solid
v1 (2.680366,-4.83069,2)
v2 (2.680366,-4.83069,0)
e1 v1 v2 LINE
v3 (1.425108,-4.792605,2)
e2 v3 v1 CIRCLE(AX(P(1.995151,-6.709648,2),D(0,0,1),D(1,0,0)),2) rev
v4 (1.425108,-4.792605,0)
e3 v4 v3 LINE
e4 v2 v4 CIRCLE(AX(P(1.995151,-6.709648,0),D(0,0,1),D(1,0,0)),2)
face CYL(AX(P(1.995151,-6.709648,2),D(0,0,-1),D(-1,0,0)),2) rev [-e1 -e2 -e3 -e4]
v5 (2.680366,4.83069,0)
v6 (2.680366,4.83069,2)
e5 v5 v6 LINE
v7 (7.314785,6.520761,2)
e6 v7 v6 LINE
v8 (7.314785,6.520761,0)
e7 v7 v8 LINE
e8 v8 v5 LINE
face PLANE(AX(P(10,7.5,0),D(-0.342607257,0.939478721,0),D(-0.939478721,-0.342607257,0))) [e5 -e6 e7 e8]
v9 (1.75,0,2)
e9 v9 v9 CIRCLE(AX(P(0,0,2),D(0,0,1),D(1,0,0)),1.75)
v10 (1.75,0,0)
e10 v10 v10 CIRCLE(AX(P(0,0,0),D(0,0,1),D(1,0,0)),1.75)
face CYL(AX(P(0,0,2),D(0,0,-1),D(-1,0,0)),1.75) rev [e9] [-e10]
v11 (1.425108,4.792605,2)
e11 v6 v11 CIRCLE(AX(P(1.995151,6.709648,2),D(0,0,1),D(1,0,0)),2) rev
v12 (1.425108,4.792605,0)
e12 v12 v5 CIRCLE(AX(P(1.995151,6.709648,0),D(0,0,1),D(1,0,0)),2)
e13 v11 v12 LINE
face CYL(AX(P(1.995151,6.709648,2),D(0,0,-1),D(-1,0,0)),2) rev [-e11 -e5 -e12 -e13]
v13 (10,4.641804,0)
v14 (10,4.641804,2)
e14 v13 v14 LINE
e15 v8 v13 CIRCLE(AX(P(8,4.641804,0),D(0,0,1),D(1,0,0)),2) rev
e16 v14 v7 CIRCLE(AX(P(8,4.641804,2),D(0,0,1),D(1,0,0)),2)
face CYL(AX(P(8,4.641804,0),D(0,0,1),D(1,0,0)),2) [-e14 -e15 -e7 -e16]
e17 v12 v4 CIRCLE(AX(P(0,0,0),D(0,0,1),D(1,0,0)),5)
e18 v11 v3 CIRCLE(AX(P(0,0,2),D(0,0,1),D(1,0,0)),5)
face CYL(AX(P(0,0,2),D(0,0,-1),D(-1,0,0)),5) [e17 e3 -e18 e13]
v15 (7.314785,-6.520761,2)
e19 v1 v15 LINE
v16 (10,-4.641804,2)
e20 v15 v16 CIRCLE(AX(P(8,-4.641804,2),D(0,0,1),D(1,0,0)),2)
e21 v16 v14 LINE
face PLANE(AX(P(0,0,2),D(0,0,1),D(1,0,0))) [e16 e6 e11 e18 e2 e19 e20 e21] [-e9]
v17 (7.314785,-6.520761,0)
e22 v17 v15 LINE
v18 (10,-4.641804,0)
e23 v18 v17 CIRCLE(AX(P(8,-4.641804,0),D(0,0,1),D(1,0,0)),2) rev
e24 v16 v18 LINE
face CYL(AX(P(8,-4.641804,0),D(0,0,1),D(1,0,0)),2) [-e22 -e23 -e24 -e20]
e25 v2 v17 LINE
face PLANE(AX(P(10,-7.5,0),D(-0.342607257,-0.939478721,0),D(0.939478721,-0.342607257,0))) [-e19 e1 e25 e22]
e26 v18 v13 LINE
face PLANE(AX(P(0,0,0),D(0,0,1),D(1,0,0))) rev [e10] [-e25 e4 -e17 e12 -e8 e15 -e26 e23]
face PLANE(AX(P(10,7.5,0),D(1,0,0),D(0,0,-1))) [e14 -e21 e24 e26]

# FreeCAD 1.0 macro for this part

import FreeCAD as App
import Part
import Sketcher

V = App.Vector


def edges_at(feature, points):
    """Names of the edges that pass closest to the given points."""
    edges = feature.Shape.Edges
    near = lambda p: min(range(len(edges)), key=lambda i: edges[i].distToShape(Part.Vertex(*p))[0])
    return sorted({f"Edge{near(p) + 1}" for p in points})


def add_polygon(sketch, points):
    """Adds a closed chain of lines whose ends are joined by coincident constraints."""
    first, n = sketch.GeometryCount, len(points)
    for a, b in zip(points, points[1:] + points[:1]):
        sketch.addGeometry(Part.LineSegment(App.Vector(*a, 0), App.Vector(*b, 0)), False)
    for i in range(n):
        sketch.addConstraint(Sketcher.Constraint("Coincident", first + i, 2, first + (i + 1) % n, 1))

doc = App.newDocument("Part")
params = doc.addObject("Spreadsheet::Sheet", "Params")
for row, (alias, value) in enumerate([
    ("sketch1_diameter", "10 mm"),
    ("sketch1_diameter2", "3.5 mm"),
    ("pad1_length", "2 mm"),
    ("sketch2_height", "15 mm"),
    ("pad2_length", "2 mm"),
    ("fillet_radius", "2 mm"),
], start=1):
    params.set(f"A{row}", alias)
    params.set(f"B{row}", "=" + value)
    params.setAlias(f"B{row}", alias)

body = doc.addObject("PartDesign::Body", "Body")

# Sketch on XY plane
sketch1 = doc.addObject("Sketcher::SketchObject", "Sketch")
body.addObject(sketch1)
sketch1.AttachmentSupport = (doc.XY_Plane, [""])
sketch1.MapMode = "FlatFace"
sketch1.addGeometry(Part.Circle(V(0, 0, 0), V(0, 0, 1), 5), False)
sketch1.addGeometry(Part.Circle(V(0, 0, 0), V(0, 0, 1), 1.8), False)
sketch1.addConstraint(Sketcher.Constraint("Coincident", 0, 3, -1, 1))
sketch1.addConstraint(Sketcher.Constraint("Coincident", 1, 3, -1, 1))
sketch1.addConstraint(Sketcher.Constraint("Diameter", 0, 10.0))
sketch1.addConstraint(Sketcher.Constraint("Diameter", 1, 3.5))
sketch1.setExpression("Constraints[2]", "Params.sketch1_diameter")
sketch1.setExpression("Constraints[3]", "Params.sketch1_diameter2")
pad1 = doc.addObject("PartDesign::Pad", "Pad")
body.addObject(pad1)
pad1.Profile = sketch1
pad1.setExpression("Length", "Params.pad1_length")

# Sketch on XY plane
sketch2 = doc.addObject("Sketcher::SketchObject", "Sketch001")
body.addObject(sketch2)
sketch2.AttachmentSupport = (doc.XY_Plane, [""])
sketch2.MapMode = "FlatFace"
sketch2.AttachmentOffset = App.Placement(V(0, 0, 2), App.Rotation())
add_polygon(sketch2, [(10, -8), (10, 8), (2, 5), (2, -5)])  # lines 0-3
sketch2.addConstraint(Sketcher.Constraint("Vertical", 0))
sketch2.addConstraint(Sketcher.Constraint("Vertical", 2))
sketch2.addConstraint(Sketcher.Constraint("Equal", 1, 3))
sketch2.addConstraint(Sketcher.Constraint("DistanceY", 0, 1, 0, 2, 15.0))
sketch2.addConstraint(Sketcher.Constraint("DistanceX", -1, 1, 0, 2, 10.0))
sketch2.addConstraint(Sketcher.Constraint("DistanceX", -1, 1, 1, 2, 2.0))
sketch2.addConstraint(Sketcher.Constraint("DistanceY", -1, 1, 0, 2, 7.5))
sketch2.addConstraint(Sketcher.Constraint("DistanceY", 2, 2, 2, 1, 9.165151))
sketch2.setExpression("Constraints[7]", "Params.sketch2_height")
pad2 = doc.addObject("PartDesign::Pad", "Pad001")
body.addObject(pad2)
pad2.Profile = sketch2
pad2.setExpression("Length", "Params.pad2_length")
pad2.Reversed = True
doc.recompute()

fillet = doc.addObject("PartDesign::Fillet", "Fillet")
body.addObject(fillet)
fillet.Base = (pad2, edges_at(pad2, [
    (2, 4.583, 1),
    (10, 7.5, 1),
    (10, -7.5, 1),
    (2, -4.583, 1),
]))
fillet.setExpression("Radius", "Params.fillet_radius")

doc.recompute()
